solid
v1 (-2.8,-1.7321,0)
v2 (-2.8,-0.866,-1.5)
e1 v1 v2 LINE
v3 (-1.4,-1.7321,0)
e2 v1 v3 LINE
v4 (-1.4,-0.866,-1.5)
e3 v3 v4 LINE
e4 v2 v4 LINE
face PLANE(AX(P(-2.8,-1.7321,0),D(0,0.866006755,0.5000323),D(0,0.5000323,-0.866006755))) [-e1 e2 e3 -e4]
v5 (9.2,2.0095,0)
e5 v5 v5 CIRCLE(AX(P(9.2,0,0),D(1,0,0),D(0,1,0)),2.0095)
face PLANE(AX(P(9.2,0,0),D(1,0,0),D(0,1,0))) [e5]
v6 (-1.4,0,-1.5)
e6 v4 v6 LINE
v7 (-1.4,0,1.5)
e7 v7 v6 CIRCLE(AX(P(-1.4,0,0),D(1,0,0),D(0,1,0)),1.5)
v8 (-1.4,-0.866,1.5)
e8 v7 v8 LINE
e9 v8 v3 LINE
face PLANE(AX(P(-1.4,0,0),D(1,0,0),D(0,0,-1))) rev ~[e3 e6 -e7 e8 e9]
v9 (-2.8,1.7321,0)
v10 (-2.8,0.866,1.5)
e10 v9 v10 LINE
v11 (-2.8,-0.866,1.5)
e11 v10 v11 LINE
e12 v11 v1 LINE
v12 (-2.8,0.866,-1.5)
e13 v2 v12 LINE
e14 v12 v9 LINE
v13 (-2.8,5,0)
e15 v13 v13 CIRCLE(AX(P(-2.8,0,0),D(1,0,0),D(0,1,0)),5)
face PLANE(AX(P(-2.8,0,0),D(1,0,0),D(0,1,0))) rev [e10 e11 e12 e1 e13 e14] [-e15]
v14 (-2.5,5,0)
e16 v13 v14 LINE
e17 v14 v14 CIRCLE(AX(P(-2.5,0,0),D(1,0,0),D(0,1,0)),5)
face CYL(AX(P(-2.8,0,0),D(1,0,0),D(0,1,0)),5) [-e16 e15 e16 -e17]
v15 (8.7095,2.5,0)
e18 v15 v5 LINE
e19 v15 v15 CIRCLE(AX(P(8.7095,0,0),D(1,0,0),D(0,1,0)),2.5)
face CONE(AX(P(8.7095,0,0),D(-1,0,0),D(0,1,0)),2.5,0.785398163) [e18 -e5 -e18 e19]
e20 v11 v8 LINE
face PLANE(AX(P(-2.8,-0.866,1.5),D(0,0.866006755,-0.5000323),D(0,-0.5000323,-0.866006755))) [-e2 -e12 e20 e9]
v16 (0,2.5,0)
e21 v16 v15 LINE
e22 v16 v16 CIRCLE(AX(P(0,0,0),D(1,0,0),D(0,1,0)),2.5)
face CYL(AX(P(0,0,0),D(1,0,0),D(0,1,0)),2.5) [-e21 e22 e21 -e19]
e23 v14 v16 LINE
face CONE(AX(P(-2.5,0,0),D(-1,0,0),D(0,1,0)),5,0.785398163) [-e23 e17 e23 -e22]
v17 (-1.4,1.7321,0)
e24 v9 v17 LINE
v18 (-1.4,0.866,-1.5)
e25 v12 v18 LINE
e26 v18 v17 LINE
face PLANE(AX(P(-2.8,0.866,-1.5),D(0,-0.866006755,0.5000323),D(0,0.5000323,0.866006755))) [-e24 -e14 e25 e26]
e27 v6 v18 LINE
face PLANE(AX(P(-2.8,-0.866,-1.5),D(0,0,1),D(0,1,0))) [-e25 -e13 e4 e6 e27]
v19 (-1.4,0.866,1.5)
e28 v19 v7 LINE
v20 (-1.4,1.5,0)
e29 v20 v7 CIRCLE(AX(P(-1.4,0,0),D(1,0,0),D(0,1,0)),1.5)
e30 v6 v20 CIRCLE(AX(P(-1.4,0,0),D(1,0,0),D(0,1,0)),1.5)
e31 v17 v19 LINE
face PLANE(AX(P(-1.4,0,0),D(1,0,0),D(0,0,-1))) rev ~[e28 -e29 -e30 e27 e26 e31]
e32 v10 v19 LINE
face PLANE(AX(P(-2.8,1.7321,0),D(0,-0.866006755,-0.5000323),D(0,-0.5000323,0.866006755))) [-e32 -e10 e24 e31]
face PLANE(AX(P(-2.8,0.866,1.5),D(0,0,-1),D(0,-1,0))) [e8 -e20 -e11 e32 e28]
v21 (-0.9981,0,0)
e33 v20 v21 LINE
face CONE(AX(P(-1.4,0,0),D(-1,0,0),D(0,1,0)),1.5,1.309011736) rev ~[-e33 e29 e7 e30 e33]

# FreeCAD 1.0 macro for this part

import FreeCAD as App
import Part
import Sketcher
Q = App.Units.Quantity


def add_polygon(sketch, points):
    """Adds a closed chain of lines whose ends are joined by coincident constraints."""
    first, n = sketch.GeometryCount, len(points)
    for a, b in zip(points, points[1:] + points[:1]):
        sketch.addGeometry(Part.LineSegment(App.Vector(*a, 0), App.Vector(*b, 0)), False)
    for i in range(n):
        sketch.addConstraint(Sketcher.Constraint("Coincident", first + i, 2, first + (i + 1) % n, 1))

doc = App.newDocument("Part")
body = doc.addObject("PartDesign::Body", "Body")

# Sketch on XY plane
sketch1 = body.newObject("Sketcher::SketchObject", "Sketch")
sketch1.AttachmentSupport = (doc.getObject("XY_Plane"), [""])
sketch1.MapMode = "FlatFace"
add_polygon(sketch1, [(-2.8, 0), (9.2, 0), (9.2, 2.01), (8.71, 2.5), (0, 2.5), (-2.5, 5), (-2.8, 5)])  # lines 0-6
sketch1.addConstraint([
    Sketcher.Constraint("Horizontal", 0),
    Sketcher.Constraint("Vertical", 1),
    Sketcher.Constraint("Horizontal", 3),
    Sketcher.Constraint("Horizontal", 5),
    Sketcher.Constraint("Vertical", 6),
    Sketcher.Constraint("PointOnObject", 0, 2, -1),
    Sketcher.Constraint("PointOnObject", 3, 2, -2),
    Sketcher.Constraint("Parallel", 2, 4),
    Sketcher.Constraint("DistanceX", 0, 1, 0, 2, 12.0),
    Sketcher.Constraint("DistanceY", 6, 2, 6, 1, 5.0),
    Sketcher.Constraint("Angle", 2, Q("135 deg")),
    Sketcher.Constraint("DistanceX", 5, 2, 5, 1, 0.3),
    Sketcher.Constraint("DistanceX", -1, 1, 0, 2, 9.2),
    Sketcher.Constraint("DistanceX", 3, 2, 3, 1, 8.7095),
])
revolution = body.newObject("PartDesign::Revolution", "Revolution")
revolution.Profile = sketch1
revolution.ReferenceAxis = (sketch1, ["H_Axis"])
revolution.Angle = 360

# Sketch on XY plane
sketch2 = body.newObject("Sketcher::SketchObject", "Sketch001")
sketch2.AttachmentSupport = (doc.getObject("XY_Plane"), [""])
sketch2.MapMode = "FlatFace"
add_polygon(sketch2, [(-2.8, 0), (-1, 0), (-1.4, 1.5), (-2.8, 1.5)])  # lines 0-3
sketch2.addConstraint([
    Sketcher.Constraint("Horizontal", 0),
    Sketcher.Constraint("Horizontal", 2),
    Sketcher.Constraint("Vertical", 3),
    Sketcher.Constraint("PointOnObject", 0, 2, -1),
    Sketcher.Constraint("Angle", 1, Q("104.9992 deg")),
    Sketcher.Constraint("DistanceX", 2, 2, 2, 1, 1.4),
    Sketcher.Constraint("DistanceY", 3, 2, 3, 1, 1.5),
    Sketcher.Constraint("DistanceX", 1, 2, -1, 1, 1.4),
])
groove = body.newObject("PartDesign::Groove", "Groove")
groove.Profile = sketch2
groove.ReferenceAxis = (sketch2, ["H_Axis"])
groove.Angle = 360

# Sketch on YZ plane
sketch3 = body.newObject("Sketcher::SketchObject", "Sketch002")
sketch3.AttachmentSupport = (doc.getObject("YZ_Plane"), [""])
sketch3.MapMode = "FlatFace"
sketch3.AttachmentOffset = App.Placement(App.Vector(0, 0, -2.8), App.Rotation())
add_polygon(sketch3, [(1.7, 0), (0.9, 1.5), (-0.9, 1.5), (-1.7, 0), (-0.9, -1.5), (0.9, -1.5)])  # lines 0-5
sketch3.addConstraint([
    Sketcher.Constraint("Horizontal", 1),
    Sketcher.Constraint("Horizontal", 4),
    Sketcher.Constraint("Symmetric", 0, 2, 3, 2, -1, 1),
    Sketcher.Constraint("Symmetric", 2, 2, 5, 2, -1, 1),
    Sketcher.Constraint("PointOnObject", 2, 2, -1),
    Sketcher.Constraint("Parallel", 2, 5),
    Sketcher.Constraint("Vertical", 1, 2, 3, 2),
    Sketcher.Constraint("DistanceY", 3, 2, 1, 2, 3.0),
    Sketcher.Constraint("DistanceX", 1, 2, 1, 1, 1.732),
    Sketcher.Constraint("Distance", 0, 1.732),
])
pocket1 = body.newObject("PartDesign::Pocket", "Pocket")
pocket1.Profile = sketch3
pocket1.Length = 1.4
pocket1.Reversed = True

doc.recompute()
